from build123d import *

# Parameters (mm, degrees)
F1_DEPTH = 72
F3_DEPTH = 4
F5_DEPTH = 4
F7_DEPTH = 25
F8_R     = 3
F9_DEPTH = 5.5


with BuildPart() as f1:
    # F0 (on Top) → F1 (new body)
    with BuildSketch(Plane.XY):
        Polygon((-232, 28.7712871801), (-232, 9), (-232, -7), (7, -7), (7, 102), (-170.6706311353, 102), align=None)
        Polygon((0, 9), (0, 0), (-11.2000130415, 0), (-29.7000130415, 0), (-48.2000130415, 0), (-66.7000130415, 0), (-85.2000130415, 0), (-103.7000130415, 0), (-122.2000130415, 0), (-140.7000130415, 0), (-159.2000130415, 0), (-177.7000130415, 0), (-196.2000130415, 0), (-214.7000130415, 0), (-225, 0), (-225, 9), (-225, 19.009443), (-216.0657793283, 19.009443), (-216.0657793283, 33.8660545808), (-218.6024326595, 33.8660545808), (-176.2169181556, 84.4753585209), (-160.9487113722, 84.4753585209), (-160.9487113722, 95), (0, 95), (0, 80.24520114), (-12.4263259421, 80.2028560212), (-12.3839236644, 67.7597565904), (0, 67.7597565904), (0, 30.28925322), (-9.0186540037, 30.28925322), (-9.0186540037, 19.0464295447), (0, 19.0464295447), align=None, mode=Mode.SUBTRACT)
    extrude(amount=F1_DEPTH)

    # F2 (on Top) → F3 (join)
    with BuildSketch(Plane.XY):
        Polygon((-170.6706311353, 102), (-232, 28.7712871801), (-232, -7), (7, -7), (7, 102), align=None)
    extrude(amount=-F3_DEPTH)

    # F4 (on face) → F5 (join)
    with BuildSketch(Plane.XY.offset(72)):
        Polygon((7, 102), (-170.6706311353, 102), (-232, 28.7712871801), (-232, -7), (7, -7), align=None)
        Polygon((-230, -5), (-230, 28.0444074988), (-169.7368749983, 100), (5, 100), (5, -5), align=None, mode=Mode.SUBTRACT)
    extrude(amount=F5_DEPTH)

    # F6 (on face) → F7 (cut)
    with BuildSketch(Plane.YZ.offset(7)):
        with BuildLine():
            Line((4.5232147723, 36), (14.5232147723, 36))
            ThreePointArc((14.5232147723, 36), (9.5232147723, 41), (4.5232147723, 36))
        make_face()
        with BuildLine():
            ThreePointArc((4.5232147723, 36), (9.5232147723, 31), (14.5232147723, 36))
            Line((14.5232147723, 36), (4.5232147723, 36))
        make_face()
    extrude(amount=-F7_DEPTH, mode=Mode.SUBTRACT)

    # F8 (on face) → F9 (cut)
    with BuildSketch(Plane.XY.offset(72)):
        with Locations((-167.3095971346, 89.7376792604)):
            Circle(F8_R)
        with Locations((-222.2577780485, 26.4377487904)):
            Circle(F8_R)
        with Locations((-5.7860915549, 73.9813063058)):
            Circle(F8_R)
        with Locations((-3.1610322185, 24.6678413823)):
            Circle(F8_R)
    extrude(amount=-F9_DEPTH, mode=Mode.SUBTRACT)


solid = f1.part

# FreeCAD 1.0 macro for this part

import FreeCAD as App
import Part
import Sketcher

V = App.Vector
Q = App.Units.Quantity

doc = App.newDocument("Part")
body = doc.addObject("PartDesign::Body", "Body")

# Sketch on XY plane
sketch1 = body.newObject("Sketcher::SketchObject", "Sketch")
sketch1.AttachmentSupport = (doc.getObject("XY_Plane"), [""])
sketch1.MapMode = "FlatFace"
sketch1.addGeometry([
    Part.LineSegment(V(-232, 28.8, 0), V(-232, -7, 0)),  # 0
    Part.LineSegment(V(-232, -7, 0), V(7, -7, 0)),  # 1
    Part.LineSegment(V(7, -7, 0), V(7, 102, 0)),  # 2
    Part.LineSegment(V(7, 102, 0), V(-170.7, 102, 0)),  # 3
    Part.LineSegment(V(-170.7, 102, 0), V(-232, 28.8, 0)),  # 4
    Part.LineSegment(V(0, 19, 0), V(0, 0, 0)),  # 5
    Part.LineSegment(V(0, 0, 0), V(-225, 0, 0)),  # 6
    Part.LineSegment(V(-225, 0, 0), V(-225, 19, 0)),  # 7
    Part.LineSegment(V(-225, 19, 0), V(-216.1, 19, 0)),  # 8
    Part.LineSegment(V(-216.1, 19, 0), V(-216.1, 33.9, 0)),  # 9
    Part.LineSegment(V(-216.1, 33.9, 0), V(-218.6, 33.9, 0)),  # 10
    Part.LineSegment(V(-218.6, 33.9, 0), V(-176.2, 84.5, 0)),  # 11
    Part.LineSegment(V(-176.2, 84.5, 0), V(-160.9, 84.5, 0)),  # 12
    Part.LineSegment(V(-160.9, 84.5, 0), V(-160.9, 95, 0)),  # 13
    Part.LineSegment(V(-160.9, 95, 0), V(0, 95, 0)),  # 14
    Part.LineSegment(V(0, 95, 0), V(0, 80.2, 0)),  # 15
    Part.LineSegment(V(0, 80.2, 0), V(-12.4, 80.2, 0)),  # 16
    Part.LineSegment(V(-12.4, 80.2, 0), V(-12.4, 67.8, 0)),  # 17
    Part.LineSegment(V(-12.4, 67.8, 0), V(0, 67.8, 0)),  # 18
    Part.LineSegment(V(0, 67.8, 0), V(0, 30.3, 0)),  # 19
    Part.LineSegment(V(0, 30.3, 0), V(-9, 30.3, 0)),  # 20
    Part.LineSegment(V(-9, 30.3, 0), V(-9, 19, 0)),  # 21
    Part.LineSegment(V(-9, 19, 0), V(0, 19, 0)),  # 22
], False)
sketch1.addConstraint([
    Sketcher.Constraint("Coincident", 0, 2, 1, 1),
    Sketcher.Constraint("Coincident", 1, 2, 2, 1),
    Sketcher.Constraint("Coincident", 2, 2, 3, 1),
    Sketcher.Constraint("Coincident", 3, 2, 4, 1),
    Sketcher.Constraint("Coincident", 4, 2, 0, 1),
    Sketcher.Constraint("Coincident", 5, 2, 6, 1),
    Sketcher.Constraint("Coincident", 6, 2, 7, 1),
    Sketcher.Constraint("Coincident", 7, 2, 8, 1),
    Sketcher.Constraint("Coincident", 8, 2, 9, 1),
    Sketcher.Constraint("Coincident", 9, 2, 10, 1),
    Sketcher.Constraint("Coincident", 10, 2, 11, 1),
    Sketcher.Constraint("Coincident", 11, 2, 12, 1),
    Sketcher.Constraint("Coincident", 12, 2, 13, 1),
    Sketcher.Constraint("Coincident", 13, 2, 14, 1),
    Sketcher.Constraint("Coincident", 14, 2, 15, 1),
    Sketcher.Constraint("Coincident", 15, 2, 16, 1),
    Sketcher.Constraint("Coincident", 16, 2, 17, 1),
    Sketcher.Constraint("Coincident", 17, 2, 18, 1),
    Sketcher.Constraint("Coincident", 18, 2, 19, 1),
    Sketcher.Constraint("Coincident", 19, 2, 20, 1),
    Sketcher.Constraint("Coincident", 20, 2, 21, 1),
    Sketcher.Constraint("Coincident", 21, 2, 22, 1),
    Sketcher.Constraint("Coincident", 22, 2, 5, 1),
    Sketcher.Constraint("Vertical", 0),
    Sketcher.Constraint("Horizontal", 1),
    Sketcher.Constraint("Vertical", 2),
    Sketcher.Constraint("Horizontal", 3),
    Sketcher.Constraint("Vertical", 5),
    Sketcher.Constraint("Horizontal", 6),
    Sketcher.Constraint("Vertical", 7),
    Sketcher.Constraint("Horizontal", 8),
    Sketcher.Constraint("Vertical", 9),
    Sketcher.Constraint("Horizontal", 10),
    Sketcher.Constraint("Horizontal", 12),
    Sketcher.Constraint("Vertical", 13),
    Sketcher.Constraint("Horizontal", 14),
    Sketcher.Constraint("Vertical", 15),
    Sketcher.Constraint("Horizontal", 18),
    Sketcher.Constraint("Vertical", 19),
    Sketcher.Constraint("Horizontal", 20),
    Sketcher.Constraint("Vertical", 21),
    Sketcher.Constraint("Horizontal", 22),
    Sketcher.Constraint("Coincident", 5, 2, -1, 1),
    Sketcher.Constraint("PointOnObject", 14, 2, -2),
    Sketcher.Constraint("PointOnObject", 18, 2, -2),
    Sketcher.Constraint("Parallel", 4, 11),
    Sketcher.Constraint("Perpendicular", 16, 17),
    Sketcher.Constraint("DistanceX", 1, 1, 1, 2, Q("239 mm")),
    Sketcher.Constraint("DistanceX", 6, 2, 6, 1, Q("225 mm")),
    Sketcher.Constraint("DistanceY", 2, 1, 2, 2, Q("109 mm")),
    Sketcher.Constraint("DistanceX", 0, 2, -1, 1, Q("232 mm")),
    Sketcher.Constraint("DistanceY", 0, 2, -1, 1, Q("7 mm")),
    Sketcher.Constraint("DistanceY", -1, 1, 13, 2, Q("95 mm")),
    Sketcher.Constraint("DistanceY", 15, 2, 15, 1, Q("14.754799 mm")),
    Sketcher.Constraint("Distance", 16, Q("12.426398 mm")),
    Sketcher.Constraint("DistanceX", 3, 2, 3, 1, Q("177.670631 mm")),
    Sketcher.Constraint("DistanceX", 8, 1, 8, 2, Q("8.934221 mm")),
    Sketcher.Constraint("DistanceX", 14, 1, 14, 2, Q("160.948711 mm")),
    Sketcher.Constraint("DistanceY", 5, 2, 5, 1, Q("19.04643 mm")),
    Sketcher.Constraint("DistanceY", 9, 1, 9, 2, Q("14.856612 mm")),
    Sketcher.Constraint("DistanceY", 13, 1, 13, 2, Q("10.524641 mm")),
    Sketcher.Constraint("DistanceY", 17, 2, 16, 2, Q("12.443099 mm")),
    Sketcher.Constraint("Distance", 4, Q("95.518249 mm")),
    Sketcher.Constraint("Distance", 11, Q("66.013889 mm")),
    Sketcher.Constraint("DistanceX", 10, 2, 10, 1, Q("2.536653 mm")),
    Sketcher.Constraint("DistanceX", 18, 1, 18, 2, Q("12.383924 mm")),
    Sketcher.Constraint("DistanceX", 20, 2, 20, 1, Q("9.018654 mm")),
    Sketcher.Constraint("DistanceY", 19, 2, 19, 1, Q("37.470503 mm")),
])
pad1 = body.newObject("PartDesign::Pad", "Pad")
pad1.Profile = sketch1
pad1.Length = 72

# Sketch on XY plane
sketch2 = body.newObject("Sketcher::SketchObject", "Sketch001")
sketch2.AttachmentSupport = (doc.getObject("XY_Plane"), [""])
sketch2.MapMode = "FlatFace"
sketch2.addGeometry([
    Part.LineSegment(V(-171, 102, 0), V(-232, 29, 0)),  # 0
    Part.LineSegment(V(-232, 29, 0), V(-232, -7, 0)),  # 1
    Part.LineSegment(V(-232, -7, 0), V(7, -7, 0)),  # 2
    Part.LineSegment(V(7, -7, 0), V(7, 102, 0)),  # 3
    Part.LineSegment(V(7, 102, 0), V(-171, 102, 0)),  # 4
], False)
sketch2.addConstraint([
    Sketcher.Constraint("Coincident", 0, 2, 1, 1),
    Sketcher.Constraint("Coincident", 1, 2, 2, 1),
    Sketcher.Constraint("Coincident", 2, 2, 3, 1),
    Sketcher.Constraint("Coincident", 3, 2, 4, 1),
    Sketcher.Constraint("Coincident", 4, 2, 0, 1),
    Sketcher.Constraint("Vertical", 1),
    Sketcher.Constraint("Horizontal", 2),
    Sketcher.Constraint("Vertical", 3),
    Sketcher.Constraint("Horizontal", 4),
    Sketcher.Constraint("DistanceX", 2, 1, 2, 2, Q("239 mm")),
    Sketcher.Constraint("DistanceY", 3, 1, 3, 2, Q("109 mm")),
    Sketcher.Constraint("DistanceX", 0, 2, -1, 1, Q("232 mm")),
    Sketcher.Constraint("DistanceY", 1, 2, -1, 1, Q("7 mm")),
    Sketcher.Constraint("DistanceX", 4, 2, 4, 1, Q("177.670631 mm")),
    Sketcher.Constraint("Distance", 0, Q("95.518249 mm")),
])
pad2 = body.newObject("PartDesign::Pad", "Pad001")
pad2.Profile = sketch2
pad2.Length = 4
pad2.Reversed = True

# Sketch on XY plane
sketch3 = body.newObject("Sketcher::SketchObject", "Sketch002")
sketch3.AttachmentSupport = (doc.getObject("XY_Plane"), [""])
sketch3.MapMode = "FlatFace"
sketch3.AttachmentOffset = App.Placement(V(0, 0, 72), App.Rotation())
sketch3.addGeometry([
    Part.LineSegment(V(7, 102, 0), V(-171, 102, 0)),  # 0
    Part.LineSegment(V(-171, 102, 0), V(-232, 29, 0)),  # 1
    Part.LineSegment(V(-232, 29, 0), V(-232, -7, 0)),  # 2
    Part.LineSegment(V(-232, -7, 0), V(7, -7, 0)),  # 3
    Part.LineSegment(V(7, -7, 0), V(7, 102, 0)),  # 4
    Part.LineSegment(V(5, -5, 0), V(-230, -5, 0)),  # 5
    Part.LineSegment(V(-230, -5, 0), V(-230, 28, 0)),  # 6
    Part.LineSegment(V(-230, 28, 0), V(-170, 100, 0)),  # 7
    Part.LineSegment(V(-170, 100, 0), V(5, 100, 0)),  # 8
    Part.LineSegment(V(5, 100, 0), V(5, -5, 0)),  # 9
], False)
sketch3.addConstraint([
    Sketcher.Constraint("Coincident", 0, 2, 1, 1),
    Sketcher.Constraint("Coincident", 1, 2, 2, 1),
    Sketcher.Constraint("Coincident", 2, 2, 3, 1),
    Sketcher.Constraint("Coincident", 3, 2, 4, 1),
    Sketcher.Constraint("Coincident", 4, 2, 0, 1),
    Sketcher.Constraint("Coincident", 5, 2, 6, 1),
    Sketcher.Constraint("Coincident", 6, 2, 7, 1),
    Sketcher.Constraint("Coincident", 7, 2, 8, 1),
    Sketcher.Constraint("Coincident", 8, 2, 9, 1),
    Sketcher.Constraint("Coincident", 9, 2, 5, 1),
    Sketcher.Constraint("Horizontal", 0),
    Sketcher.Constraint("Vertical", 2),
    Sketcher.Constraint("Horizontal", 3),
    Sketcher.Constraint("Vertical", 4),
    Sketcher.Constraint("Horizontal", 5),
    Sketcher.Constraint("Vertical", 6),
    Sketcher.Constraint("Horizontal", 8),
    Sketcher.Constraint("Vertical", 9),
    Sketcher.Constraint("Parallel", 1, 7),
    Sketcher.Constraint("DistanceX", 3, 1, 3, 2, Q("239 mm")),
    Sketcher.Constraint("DistanceX", 5, 2, 5, 1, Q("235 mm")),
    Sketcher.Constraint("DistanceY", 4, 1, 4, 2, Q("109 mm")),
    Sketcher.Constraint("DistanceY", 9, 2, 9, 1, Q("105 mm")),
    Sketcher.Constraint("DistanceY", -1, 1, 0, 2, Q("102 mm")),
    Sketcher.Constraint("DistanceX", 1, 2, -1, 1, Q("232 mm")),
    Sketcher.Constraint("DistanceX", 5, 2, -1, 1, Q("230 mm")),
    Sketcher.Constraint("DistanceY", 5, 2, -1, 1, Q("5 mm")),
    Sketcher.Constraint("DistanceX", 0, 2, 0, 1, Q("177.670631 mm")),
    Sketcher.Constraint("Distance", 1, Q("95.518249 mm")),
    Sketcher.Constraint("DistanceX", 8, 1, 8, 2, Q("174.736875 mm")),
])
pad3 = body.newObject("PartDesign::Pad", "Pad002")
pad3.Profile = sketch3
pad3.Length = 4

# Sketch on YZ plane
sketch4 = body.newObject("Sketcher::SketchObject", "Sketch003")
sketch4.AttachmentSupport = (doc.getObject("YZ_Plane"), [""])
sketch4.MapMode = "FlatFace"
sketch4.AttachmentOffset = App.Placement(V(0, 0, 7), App.Rotation())
sketch4.addGeometry(Part.Circle(V(10, 36, 0), V(0, 0, 1), 5), False)
sketch4.addConstraint([
    Sketcher.Constraint("Diameter", 0, Q("10 mm")),
    Sketcher.Constraint("DistanceY", -1, 1, 0, 3, Q("36 mm")),
    Sketcher.Constraint("DistanceX", -1, 1, 0, 3, Q("9.523215 mm")),
])
pocket1 = body.newObject("PartDesign::Pocket", "Pocket")
pocket1.Profile = sketch4
pocket1.Length = 25

# Sketch on XY plane
sketch5 = body.newObject("Sketcher::SketchObject", "Sketch004")
sketch5.AttachmentSupport = (doc.getObject("XY_Plane"), [""])
sketch5.MapMode = "FlatFace"
sketch5.AttachmentOffset = App.Placement(V(0, 0, 72), App.Rotation())
sketch5.addGeometry([
    Part.Circle(V(-167.3, 89.7, 0), V(0, 0, 1), 3),
    Part.Circle(V(-222.3, 26.4, 0), V(0, 0, 1), 3),
    Part.Circle(V(-5.8, 74, 0), V(0, 0, 1), 3),
    Part.Circle(V(-3.2, 24.7, 0), V(0, 0, 1), 3),
], False)
sketch5.addConstraint([
    Sketcher.Constraint("Equal", 0, 1),
    Sketcher.Constraint("Equal", 1, 2),
    Sketcher.Constraint("Equal", 2, 3),
    Sketcher.Constraint("Diameter", 0, Q("6 mm")),
    Sketcher.Constraint("DistanceY", -1, 1, 0, 3, Q("89.737679 mm")),
    Sketcher.Constraint("DistanceX", 1, 3, -1, 1, Q("222.257778 mm")),
    Sketcher.Constraint("DistanceY", -1, 1, 1, 3, Q("26.437749 mm")),
    Sketcher.Constraint("DistanceX", 2, 3, -1, 1, Q("5.786092 mm")),
    Sketcher.Constraint("DistanceY", -1, 1, 3, 3, Q("24.667841 mm")),
    Sketcher.Constraint("DistanceX", 1, 3, 0, 3, Q("54.948181 mm")),
    Sketcher.Constraint("DistanceX", 2, 3, 3, 3, Q("2.625059 mm")),
    Sketcher.Constraint("DistanceY", -1, 1, 2, 3, Q("73.981306 mm")),
])
pocket2 = body.newObject("PartDesign::Pocket", "Pocket001")
pocket2.Profile = sketch5
pocket2.Length = 5.5

doc.recompute()
